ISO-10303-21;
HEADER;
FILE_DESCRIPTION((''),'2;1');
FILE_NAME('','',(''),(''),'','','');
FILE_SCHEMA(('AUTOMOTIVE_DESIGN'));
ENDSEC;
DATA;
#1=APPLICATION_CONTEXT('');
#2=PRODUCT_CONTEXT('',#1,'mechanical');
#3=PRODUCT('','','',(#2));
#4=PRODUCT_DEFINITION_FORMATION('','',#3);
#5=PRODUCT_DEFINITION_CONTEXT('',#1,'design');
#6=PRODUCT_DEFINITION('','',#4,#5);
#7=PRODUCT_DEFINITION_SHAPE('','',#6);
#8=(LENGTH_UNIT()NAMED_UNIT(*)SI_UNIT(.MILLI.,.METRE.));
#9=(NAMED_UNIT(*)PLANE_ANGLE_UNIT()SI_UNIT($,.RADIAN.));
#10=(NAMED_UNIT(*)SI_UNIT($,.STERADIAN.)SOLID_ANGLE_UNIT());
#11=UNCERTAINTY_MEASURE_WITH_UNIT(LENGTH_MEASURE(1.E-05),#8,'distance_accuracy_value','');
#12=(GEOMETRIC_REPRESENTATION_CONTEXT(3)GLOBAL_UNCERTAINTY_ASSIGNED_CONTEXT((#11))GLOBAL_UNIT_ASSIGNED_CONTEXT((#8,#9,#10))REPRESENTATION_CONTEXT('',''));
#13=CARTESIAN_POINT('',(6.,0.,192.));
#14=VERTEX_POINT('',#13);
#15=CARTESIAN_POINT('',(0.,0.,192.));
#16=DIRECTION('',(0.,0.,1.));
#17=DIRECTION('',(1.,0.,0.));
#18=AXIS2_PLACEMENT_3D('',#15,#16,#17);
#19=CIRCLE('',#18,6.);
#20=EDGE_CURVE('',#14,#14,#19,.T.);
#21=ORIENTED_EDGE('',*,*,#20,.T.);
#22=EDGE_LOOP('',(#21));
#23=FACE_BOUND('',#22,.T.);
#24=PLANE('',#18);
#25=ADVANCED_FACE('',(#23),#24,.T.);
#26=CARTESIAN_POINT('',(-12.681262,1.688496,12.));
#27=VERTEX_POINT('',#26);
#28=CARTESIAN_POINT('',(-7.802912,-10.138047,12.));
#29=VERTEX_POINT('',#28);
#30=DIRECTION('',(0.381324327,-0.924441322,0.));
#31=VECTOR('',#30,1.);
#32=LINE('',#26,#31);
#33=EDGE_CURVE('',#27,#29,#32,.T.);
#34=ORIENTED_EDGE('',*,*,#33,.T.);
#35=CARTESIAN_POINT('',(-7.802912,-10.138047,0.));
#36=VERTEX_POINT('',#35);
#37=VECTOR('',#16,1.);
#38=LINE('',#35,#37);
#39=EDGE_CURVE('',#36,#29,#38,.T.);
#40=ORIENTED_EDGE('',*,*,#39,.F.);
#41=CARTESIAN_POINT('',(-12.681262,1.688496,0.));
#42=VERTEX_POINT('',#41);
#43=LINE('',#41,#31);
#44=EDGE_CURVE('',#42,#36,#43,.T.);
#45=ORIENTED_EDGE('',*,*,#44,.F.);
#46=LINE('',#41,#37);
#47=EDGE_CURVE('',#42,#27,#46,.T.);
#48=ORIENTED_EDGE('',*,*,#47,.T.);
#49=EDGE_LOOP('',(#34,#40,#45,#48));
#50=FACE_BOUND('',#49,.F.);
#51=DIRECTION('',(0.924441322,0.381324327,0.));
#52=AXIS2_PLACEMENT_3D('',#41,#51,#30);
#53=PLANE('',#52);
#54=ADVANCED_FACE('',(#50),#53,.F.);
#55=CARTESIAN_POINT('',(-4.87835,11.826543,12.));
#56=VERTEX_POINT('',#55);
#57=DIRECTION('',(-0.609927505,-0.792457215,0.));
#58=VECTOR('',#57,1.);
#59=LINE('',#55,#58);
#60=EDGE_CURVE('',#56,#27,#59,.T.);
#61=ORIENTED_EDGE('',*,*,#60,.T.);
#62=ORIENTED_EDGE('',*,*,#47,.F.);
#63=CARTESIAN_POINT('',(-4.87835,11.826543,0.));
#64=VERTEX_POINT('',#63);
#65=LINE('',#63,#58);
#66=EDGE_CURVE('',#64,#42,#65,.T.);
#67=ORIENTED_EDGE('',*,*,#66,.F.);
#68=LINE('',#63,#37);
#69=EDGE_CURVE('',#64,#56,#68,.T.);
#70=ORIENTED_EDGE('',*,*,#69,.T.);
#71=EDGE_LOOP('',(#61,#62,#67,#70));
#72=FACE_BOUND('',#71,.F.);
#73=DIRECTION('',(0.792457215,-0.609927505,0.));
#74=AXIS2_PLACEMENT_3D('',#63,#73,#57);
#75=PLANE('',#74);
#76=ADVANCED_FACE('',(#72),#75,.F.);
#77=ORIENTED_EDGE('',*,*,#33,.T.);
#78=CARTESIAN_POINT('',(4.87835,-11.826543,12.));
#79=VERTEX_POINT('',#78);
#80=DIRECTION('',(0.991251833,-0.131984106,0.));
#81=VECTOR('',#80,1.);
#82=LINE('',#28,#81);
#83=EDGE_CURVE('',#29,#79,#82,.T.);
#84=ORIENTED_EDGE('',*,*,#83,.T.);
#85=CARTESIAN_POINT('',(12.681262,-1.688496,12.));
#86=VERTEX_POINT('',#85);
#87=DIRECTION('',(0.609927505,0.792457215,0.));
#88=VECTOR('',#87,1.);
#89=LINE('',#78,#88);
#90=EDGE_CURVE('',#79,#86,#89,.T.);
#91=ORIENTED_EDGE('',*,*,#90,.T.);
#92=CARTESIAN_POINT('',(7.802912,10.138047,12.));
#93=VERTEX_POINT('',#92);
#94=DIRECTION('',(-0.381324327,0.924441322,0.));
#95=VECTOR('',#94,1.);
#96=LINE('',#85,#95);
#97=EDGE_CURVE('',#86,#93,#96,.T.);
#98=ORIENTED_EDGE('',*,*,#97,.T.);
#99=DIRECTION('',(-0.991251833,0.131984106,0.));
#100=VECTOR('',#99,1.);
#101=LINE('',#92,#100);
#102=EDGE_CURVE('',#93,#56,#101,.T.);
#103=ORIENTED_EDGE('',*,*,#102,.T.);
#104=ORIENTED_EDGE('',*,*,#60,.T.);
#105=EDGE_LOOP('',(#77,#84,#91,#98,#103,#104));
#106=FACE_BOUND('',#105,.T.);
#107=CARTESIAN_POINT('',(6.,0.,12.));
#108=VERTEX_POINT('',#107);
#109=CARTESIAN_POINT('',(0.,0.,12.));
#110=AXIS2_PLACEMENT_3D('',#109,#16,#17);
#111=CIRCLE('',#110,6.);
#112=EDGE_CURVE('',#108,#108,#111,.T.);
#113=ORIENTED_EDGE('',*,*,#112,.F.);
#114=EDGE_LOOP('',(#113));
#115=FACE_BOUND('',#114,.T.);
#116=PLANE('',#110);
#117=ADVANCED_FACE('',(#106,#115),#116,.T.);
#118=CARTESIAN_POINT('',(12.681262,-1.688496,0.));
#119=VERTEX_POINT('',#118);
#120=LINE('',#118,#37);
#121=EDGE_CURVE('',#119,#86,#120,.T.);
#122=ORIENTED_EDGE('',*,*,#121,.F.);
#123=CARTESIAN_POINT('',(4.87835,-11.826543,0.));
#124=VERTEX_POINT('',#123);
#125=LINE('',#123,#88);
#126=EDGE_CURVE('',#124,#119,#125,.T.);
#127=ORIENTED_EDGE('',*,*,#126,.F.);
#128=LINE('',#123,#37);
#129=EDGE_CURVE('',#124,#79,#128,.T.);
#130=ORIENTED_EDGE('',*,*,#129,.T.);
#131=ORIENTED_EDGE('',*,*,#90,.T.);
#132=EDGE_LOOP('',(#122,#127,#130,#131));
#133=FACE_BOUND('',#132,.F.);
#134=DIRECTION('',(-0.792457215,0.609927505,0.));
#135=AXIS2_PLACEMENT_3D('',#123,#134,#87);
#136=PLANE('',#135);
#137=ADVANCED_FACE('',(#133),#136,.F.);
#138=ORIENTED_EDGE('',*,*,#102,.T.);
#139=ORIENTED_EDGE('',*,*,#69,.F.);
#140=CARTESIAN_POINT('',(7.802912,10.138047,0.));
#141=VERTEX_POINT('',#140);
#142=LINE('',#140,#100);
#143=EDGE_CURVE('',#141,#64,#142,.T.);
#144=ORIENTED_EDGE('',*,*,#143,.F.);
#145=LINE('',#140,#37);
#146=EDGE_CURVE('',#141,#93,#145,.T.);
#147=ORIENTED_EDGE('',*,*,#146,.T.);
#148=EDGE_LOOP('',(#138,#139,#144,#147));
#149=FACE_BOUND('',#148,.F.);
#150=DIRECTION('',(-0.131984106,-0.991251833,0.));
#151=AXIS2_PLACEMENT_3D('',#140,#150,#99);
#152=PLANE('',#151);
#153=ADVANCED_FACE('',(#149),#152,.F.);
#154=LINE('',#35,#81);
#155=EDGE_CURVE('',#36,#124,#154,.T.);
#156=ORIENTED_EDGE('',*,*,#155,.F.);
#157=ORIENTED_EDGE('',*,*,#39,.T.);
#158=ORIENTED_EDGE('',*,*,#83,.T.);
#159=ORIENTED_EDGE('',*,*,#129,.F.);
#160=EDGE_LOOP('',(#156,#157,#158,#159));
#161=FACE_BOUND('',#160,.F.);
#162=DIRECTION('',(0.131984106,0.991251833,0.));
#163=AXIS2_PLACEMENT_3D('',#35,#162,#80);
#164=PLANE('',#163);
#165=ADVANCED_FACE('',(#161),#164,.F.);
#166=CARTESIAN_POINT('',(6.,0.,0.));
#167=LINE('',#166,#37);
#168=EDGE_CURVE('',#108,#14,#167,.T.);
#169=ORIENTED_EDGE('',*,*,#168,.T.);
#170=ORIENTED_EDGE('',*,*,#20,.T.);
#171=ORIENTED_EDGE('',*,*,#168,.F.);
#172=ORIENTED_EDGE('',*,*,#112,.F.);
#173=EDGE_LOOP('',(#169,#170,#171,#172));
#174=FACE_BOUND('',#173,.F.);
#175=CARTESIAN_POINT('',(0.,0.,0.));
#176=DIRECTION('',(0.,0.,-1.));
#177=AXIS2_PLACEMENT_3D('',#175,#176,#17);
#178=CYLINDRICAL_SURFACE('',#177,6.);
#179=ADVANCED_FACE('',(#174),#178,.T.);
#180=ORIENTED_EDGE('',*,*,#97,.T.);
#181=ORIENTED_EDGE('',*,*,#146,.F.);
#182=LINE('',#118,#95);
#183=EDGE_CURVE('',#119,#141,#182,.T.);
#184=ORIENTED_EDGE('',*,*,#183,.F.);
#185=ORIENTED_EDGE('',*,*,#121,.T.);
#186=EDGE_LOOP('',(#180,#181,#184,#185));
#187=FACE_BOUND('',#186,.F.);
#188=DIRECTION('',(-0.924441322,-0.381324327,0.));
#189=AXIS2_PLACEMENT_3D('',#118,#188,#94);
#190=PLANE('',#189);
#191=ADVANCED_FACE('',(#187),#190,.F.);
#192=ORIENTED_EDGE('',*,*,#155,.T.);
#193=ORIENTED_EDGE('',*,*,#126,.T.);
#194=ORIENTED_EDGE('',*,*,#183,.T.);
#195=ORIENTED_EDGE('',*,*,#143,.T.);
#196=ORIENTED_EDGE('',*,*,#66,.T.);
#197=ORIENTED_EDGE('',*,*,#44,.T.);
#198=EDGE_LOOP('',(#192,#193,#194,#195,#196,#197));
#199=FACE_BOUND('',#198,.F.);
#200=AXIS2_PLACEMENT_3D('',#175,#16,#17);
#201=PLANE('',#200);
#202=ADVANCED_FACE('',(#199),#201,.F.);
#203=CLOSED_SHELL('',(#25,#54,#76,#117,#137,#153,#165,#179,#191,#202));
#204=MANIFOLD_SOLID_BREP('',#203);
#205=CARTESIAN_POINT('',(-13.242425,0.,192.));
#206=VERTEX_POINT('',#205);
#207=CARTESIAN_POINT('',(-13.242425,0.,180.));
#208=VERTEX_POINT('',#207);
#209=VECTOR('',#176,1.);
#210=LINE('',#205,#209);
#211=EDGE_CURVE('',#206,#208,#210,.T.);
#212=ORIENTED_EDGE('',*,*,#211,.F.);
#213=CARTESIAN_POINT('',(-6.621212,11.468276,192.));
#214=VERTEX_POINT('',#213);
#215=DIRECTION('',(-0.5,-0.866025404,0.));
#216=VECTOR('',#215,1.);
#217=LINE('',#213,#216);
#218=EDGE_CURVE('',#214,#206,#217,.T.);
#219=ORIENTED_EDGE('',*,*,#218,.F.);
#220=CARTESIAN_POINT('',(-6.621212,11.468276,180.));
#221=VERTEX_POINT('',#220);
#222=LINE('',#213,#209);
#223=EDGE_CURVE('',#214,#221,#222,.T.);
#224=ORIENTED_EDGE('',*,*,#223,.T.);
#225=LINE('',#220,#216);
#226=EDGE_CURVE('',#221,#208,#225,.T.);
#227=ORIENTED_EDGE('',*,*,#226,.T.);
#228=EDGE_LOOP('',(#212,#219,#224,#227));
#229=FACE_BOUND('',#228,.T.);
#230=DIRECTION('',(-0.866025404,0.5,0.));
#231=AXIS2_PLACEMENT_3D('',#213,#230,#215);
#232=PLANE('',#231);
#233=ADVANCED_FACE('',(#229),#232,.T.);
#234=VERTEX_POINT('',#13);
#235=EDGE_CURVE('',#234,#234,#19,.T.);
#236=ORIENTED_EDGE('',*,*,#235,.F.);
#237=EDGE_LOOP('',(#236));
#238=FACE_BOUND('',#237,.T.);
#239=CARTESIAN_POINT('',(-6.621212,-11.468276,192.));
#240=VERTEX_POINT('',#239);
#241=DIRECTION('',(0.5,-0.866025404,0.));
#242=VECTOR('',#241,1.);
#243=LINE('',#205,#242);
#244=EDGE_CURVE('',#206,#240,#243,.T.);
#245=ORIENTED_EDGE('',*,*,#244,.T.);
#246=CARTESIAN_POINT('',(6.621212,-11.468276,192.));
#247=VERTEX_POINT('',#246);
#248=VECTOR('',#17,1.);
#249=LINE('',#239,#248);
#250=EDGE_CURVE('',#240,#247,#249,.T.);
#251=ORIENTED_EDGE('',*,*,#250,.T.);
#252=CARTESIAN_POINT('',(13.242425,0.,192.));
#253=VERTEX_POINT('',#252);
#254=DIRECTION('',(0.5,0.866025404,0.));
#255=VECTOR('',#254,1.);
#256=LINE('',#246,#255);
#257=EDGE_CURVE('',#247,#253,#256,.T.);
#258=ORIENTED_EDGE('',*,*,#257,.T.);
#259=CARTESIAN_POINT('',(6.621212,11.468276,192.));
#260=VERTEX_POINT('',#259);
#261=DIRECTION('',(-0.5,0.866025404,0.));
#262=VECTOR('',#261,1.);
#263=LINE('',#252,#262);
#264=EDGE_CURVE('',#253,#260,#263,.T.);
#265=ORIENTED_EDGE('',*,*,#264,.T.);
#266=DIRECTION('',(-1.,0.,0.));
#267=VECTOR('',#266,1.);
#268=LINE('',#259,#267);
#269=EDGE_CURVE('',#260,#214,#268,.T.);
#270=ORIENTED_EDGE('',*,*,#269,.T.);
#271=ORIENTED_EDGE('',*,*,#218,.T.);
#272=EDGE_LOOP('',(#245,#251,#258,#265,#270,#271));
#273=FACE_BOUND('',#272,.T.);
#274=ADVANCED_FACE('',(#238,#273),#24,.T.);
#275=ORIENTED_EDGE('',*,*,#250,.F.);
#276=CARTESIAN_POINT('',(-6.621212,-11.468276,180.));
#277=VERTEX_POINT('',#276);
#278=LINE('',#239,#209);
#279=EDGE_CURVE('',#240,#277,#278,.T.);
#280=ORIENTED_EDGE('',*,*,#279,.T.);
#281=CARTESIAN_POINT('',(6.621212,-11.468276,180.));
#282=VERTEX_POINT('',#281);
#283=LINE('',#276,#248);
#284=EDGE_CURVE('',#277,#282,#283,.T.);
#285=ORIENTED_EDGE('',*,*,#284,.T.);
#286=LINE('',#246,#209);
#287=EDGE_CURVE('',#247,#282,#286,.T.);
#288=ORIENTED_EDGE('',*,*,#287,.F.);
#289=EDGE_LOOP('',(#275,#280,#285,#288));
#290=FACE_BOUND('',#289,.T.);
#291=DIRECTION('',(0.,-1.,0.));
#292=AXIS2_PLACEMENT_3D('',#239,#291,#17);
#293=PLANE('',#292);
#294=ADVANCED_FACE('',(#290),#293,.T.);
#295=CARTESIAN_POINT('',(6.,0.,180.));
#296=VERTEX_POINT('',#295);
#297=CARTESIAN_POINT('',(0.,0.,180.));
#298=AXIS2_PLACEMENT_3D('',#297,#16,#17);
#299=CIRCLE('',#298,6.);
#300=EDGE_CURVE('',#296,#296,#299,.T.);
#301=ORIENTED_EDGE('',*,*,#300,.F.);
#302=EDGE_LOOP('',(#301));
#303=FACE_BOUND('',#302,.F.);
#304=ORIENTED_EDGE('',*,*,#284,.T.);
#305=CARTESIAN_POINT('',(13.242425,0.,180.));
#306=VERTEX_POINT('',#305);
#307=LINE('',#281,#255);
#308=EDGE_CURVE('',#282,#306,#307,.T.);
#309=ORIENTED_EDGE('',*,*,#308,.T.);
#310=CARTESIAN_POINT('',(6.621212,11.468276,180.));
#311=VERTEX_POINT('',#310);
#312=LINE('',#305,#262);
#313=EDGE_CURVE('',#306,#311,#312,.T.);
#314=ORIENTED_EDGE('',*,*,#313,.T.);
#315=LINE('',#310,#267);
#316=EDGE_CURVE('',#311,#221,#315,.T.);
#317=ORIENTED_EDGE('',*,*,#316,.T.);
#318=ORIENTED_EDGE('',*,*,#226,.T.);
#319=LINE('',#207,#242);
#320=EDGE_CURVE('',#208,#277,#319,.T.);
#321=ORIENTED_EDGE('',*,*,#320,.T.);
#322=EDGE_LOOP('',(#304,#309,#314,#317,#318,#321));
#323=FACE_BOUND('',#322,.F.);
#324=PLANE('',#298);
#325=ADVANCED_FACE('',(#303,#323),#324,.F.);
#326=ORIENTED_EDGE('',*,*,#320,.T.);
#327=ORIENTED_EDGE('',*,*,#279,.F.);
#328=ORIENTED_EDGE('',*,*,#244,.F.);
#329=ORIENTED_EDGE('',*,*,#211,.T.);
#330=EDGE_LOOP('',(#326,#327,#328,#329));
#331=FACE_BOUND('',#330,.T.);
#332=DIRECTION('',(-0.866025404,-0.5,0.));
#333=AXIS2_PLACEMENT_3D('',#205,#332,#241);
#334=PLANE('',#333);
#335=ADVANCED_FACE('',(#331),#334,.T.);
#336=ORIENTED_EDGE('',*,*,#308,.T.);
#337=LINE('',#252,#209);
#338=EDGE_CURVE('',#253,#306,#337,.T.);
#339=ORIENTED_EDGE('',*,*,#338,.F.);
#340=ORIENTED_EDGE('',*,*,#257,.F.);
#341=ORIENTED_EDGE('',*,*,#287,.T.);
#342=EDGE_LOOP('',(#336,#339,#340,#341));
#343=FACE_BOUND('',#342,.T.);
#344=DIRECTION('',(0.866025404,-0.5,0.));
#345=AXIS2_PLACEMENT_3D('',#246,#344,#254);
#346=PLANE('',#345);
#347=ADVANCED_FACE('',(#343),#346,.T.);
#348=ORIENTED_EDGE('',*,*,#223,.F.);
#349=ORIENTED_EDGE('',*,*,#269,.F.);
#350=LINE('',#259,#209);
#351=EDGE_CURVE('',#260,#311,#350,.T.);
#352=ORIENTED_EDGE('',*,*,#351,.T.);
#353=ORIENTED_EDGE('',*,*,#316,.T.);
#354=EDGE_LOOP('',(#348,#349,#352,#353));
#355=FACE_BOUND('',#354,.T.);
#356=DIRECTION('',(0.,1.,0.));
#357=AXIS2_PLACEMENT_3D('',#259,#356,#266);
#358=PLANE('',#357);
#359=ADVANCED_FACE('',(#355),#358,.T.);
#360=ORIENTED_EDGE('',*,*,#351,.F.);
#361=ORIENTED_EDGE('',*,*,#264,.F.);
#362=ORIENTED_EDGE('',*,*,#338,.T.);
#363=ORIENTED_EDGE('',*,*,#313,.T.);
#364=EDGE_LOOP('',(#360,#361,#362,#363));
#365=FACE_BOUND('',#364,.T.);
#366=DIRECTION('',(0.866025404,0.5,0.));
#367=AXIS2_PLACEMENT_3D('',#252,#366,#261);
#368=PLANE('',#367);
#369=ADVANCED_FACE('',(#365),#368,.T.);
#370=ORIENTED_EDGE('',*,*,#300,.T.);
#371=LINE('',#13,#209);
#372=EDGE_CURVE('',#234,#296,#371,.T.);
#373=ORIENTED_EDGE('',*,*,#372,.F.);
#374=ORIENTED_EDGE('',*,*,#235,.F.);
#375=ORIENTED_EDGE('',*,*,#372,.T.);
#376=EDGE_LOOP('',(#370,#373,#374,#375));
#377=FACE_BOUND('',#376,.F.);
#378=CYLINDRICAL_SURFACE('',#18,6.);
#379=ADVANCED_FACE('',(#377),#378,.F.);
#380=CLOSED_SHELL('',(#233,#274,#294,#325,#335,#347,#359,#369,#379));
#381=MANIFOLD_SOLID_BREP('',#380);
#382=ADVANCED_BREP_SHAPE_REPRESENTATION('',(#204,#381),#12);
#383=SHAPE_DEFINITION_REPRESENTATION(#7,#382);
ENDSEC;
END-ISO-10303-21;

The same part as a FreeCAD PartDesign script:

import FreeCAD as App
import Part
import Sketcher
from FreeCAD import Vector
Q = App.Units.Quantity

doc = App.newDocument("Part")
body = doc.addObject("PartDesign::Body", "Body")

sketch1 = body.newObject("Sketcher::SketchObject", "Sketch")
sketch1.AttachmentSupport = (doc.getObject("XY_Plane"), [""])
sketch1.MapMode = "FlatFace"
sketch1.addGeometry(Part.Circle(Vector(0, 0, 0), Vector(0, 0, 1), 6), False)
sketch1.addConstraint([
    Sketcher.Constraint("Coincident", 0, 3, -1, 1),
    Sketcher.Constraint("Diameter", 0, 12.0),
])
pad1 = body.newObject("PartDesign::Pad", "Pad")
pad1.Profile = sketch1
pad1.Length = 192

sketch2 = body.newObject("Sketcher::SketchObject", "Sketch001")
sketch2.AttachmentSupport = (doc.getObject("XY_Plane"), [""])
sketch2.MapMode = "FlatFace"
sketch2.addGeometry([
    Part.LineSegment(Vector(-4.87835, 11.826543, 0), Vector(-12.681262, 1.688496, 0)),
    Part.LineSegment(Vector(-12.681262, 1.688496, 0), Vector(-7.802912, -10.138047, 0)),
    Part.LineSegment(Vector(-7.802912, -10.138047, 0), Vector(4.87835, -11.826543, 0)),
    Part.LineSegment(Vector(4.87835, -11.826543, 0), Vector(12.681262, -1.688496, 0)),
    Part.LineSegment(Vector(12.681262, -1.688496, 0), Vector(7.802912, 10.138047, 0)),
    Part.LineSegment(Vector(7.802912, 10.138047, 0), Vector(-4.87835, 11.826543, 0)),
    Part.Circle(Vector(0, 0, 0), Vector(0, 0, 1), 6),
], False)
sketch2.addConstraint([
    Sketcher.Constraint("Coincident", 0, 2, 1, 1),
    Sketcher.Constraint("Coincident", 1, 2, 2, 1),
    Sketcher.Constraint("Coincident", 2, 2, 3, 1),
    Sketcher.Constraint("Coincident", 3, 2, 4, 1),
    Sketcher.Constraint("Coincident", 4, 2, 5, 1),
    Sketcher.Constraint("Coincident", 5, 2, 0, 1),
    Sketcher.Constraint("Coincident", 6, 3, -1, 1),
    Sketcher.Constraint("Symmetric", 0, 2, 3, 2, -1, 1),
    Sketcher.Constraint("Symmetric", 1, 2, 4, 2, -1, 1),
    Sketcher.Constraint("Symmetric", 2, 2, 5, 2, -1, 1),
    Sketcher.Constraint("Equal", 0, 1),
    Sketcher.Constraint("Equal", 1, 2),
    Sketcher.Constraint("Diameter", 6, 12.0),
    Sketcher.Constraint("Distance", 0, 12.793179),
    Sketcher.Constraint("DistanceX", 0, 2, -1, 1, 12.681262),
    Sketcher.Constraint("DistanceX", 1, 2, -1, 1, 7.802912),
    Sketcher.Constraint("DistanceX", -1, 1, 2, 2, 4.87835),
])
pad2 = body.newObject("PartDesign::Pad", "Pad001")
pad2.Profile = sketch2
pad2.Length = 12
body2 = doc.addObject("PartDesign::Body", "Body001")

sketch3 = body2.newObject("Sketcher::SketchObject", "Sketch002")
sketch3.AttachmentSupport = (doc.getObject("XY_Plane001"), [""])
sketch3.MapMode = "FlatFace"
sketch3.AttachmentOffset = App.Placement(Vector(0, 0, 192), App.Rotation())
sketch3.addGeometry([
    Part.LineSegment(Vector(-6.621212, -11.468276, 0), Vector(6.621212, -11.468276, 0)),
    Part.LineSegment(Vector(6.621212, -11.468276, 0), Vector(13.242425, 0, 0)),
    Part.LineSegment(Vector(13.242425, 0, 0), Vector(6.621212, 11.468276, 0)),
    Part.LineSegment(Vector(6.621212, 11.468276, 0), Vector(-6.621212, 11.468276, 0)),
    Part.LineSegment(Vector(-6.621212, 11.468276, 0), Vector(-13.242425, 0, 0)),
    Part.LineSegment(Vector(-13.242425, 0, 0), Vector(-6.621212, -11.468276, 0)),
    Part.Circle(Vector(0, 0, 0), Vector(0, 0, 1), 6),
], False)
sketch3.addConstraint([
    Sketcher.Constraint("Coincident", 0, 2, 1, 1),
    Sketcher.Constraint("Coincident", 1, 2, 2, 1),
    Sketcher.Constraint("Coincident", 2, 2, 3, 1),
    Sketcher.Constraint("Coincident", 3, 2, 4, 1),
    Sketcher.Constraint("Coincident", 4, 2, 5, 1),
    Sketcher.Constraint("Coincident", 5, 2, 0, 1),
    Sketcher.Constraint("Horizontal", 0),
    Sketcher.Constraint("Horizontal", 3),
    Sketcher.Constraint("Coincident", 6, 3, -1, 1),
    Sketcher.Constraint("Symmetric", 0, 2, 3, 2, -1, 1),
    Sketcher.Constraint("Symmetric", 1, 2, 4, 2, -1, 1),
    Sketcher.Constraint("PointOnObject", 1, 2, -1),
    Sketcher.Constraint("Parallel", 2, 5),
    Sketcher.Constraint("Vertical", 0, 2, 2, 2),
    Sketcher.Constraint("Diameter", 6, 12.0),
    Sketcher.Constraint("Angle", 1, Q("60 deg")),
    Sketcher.Constraint("DistanceX", 0, 1, 0, 2, 13.242425),
    Sketcher.Constraint("DistanceX", 4, 2, 1, 2, 26.48485),
])
pad3 = body2.newObject("PartDesign::Pad", "Pad002")
pad3.Profile = sketch3
pad3.Length = 12
pad3.Reversed = True

doc.recompute()
